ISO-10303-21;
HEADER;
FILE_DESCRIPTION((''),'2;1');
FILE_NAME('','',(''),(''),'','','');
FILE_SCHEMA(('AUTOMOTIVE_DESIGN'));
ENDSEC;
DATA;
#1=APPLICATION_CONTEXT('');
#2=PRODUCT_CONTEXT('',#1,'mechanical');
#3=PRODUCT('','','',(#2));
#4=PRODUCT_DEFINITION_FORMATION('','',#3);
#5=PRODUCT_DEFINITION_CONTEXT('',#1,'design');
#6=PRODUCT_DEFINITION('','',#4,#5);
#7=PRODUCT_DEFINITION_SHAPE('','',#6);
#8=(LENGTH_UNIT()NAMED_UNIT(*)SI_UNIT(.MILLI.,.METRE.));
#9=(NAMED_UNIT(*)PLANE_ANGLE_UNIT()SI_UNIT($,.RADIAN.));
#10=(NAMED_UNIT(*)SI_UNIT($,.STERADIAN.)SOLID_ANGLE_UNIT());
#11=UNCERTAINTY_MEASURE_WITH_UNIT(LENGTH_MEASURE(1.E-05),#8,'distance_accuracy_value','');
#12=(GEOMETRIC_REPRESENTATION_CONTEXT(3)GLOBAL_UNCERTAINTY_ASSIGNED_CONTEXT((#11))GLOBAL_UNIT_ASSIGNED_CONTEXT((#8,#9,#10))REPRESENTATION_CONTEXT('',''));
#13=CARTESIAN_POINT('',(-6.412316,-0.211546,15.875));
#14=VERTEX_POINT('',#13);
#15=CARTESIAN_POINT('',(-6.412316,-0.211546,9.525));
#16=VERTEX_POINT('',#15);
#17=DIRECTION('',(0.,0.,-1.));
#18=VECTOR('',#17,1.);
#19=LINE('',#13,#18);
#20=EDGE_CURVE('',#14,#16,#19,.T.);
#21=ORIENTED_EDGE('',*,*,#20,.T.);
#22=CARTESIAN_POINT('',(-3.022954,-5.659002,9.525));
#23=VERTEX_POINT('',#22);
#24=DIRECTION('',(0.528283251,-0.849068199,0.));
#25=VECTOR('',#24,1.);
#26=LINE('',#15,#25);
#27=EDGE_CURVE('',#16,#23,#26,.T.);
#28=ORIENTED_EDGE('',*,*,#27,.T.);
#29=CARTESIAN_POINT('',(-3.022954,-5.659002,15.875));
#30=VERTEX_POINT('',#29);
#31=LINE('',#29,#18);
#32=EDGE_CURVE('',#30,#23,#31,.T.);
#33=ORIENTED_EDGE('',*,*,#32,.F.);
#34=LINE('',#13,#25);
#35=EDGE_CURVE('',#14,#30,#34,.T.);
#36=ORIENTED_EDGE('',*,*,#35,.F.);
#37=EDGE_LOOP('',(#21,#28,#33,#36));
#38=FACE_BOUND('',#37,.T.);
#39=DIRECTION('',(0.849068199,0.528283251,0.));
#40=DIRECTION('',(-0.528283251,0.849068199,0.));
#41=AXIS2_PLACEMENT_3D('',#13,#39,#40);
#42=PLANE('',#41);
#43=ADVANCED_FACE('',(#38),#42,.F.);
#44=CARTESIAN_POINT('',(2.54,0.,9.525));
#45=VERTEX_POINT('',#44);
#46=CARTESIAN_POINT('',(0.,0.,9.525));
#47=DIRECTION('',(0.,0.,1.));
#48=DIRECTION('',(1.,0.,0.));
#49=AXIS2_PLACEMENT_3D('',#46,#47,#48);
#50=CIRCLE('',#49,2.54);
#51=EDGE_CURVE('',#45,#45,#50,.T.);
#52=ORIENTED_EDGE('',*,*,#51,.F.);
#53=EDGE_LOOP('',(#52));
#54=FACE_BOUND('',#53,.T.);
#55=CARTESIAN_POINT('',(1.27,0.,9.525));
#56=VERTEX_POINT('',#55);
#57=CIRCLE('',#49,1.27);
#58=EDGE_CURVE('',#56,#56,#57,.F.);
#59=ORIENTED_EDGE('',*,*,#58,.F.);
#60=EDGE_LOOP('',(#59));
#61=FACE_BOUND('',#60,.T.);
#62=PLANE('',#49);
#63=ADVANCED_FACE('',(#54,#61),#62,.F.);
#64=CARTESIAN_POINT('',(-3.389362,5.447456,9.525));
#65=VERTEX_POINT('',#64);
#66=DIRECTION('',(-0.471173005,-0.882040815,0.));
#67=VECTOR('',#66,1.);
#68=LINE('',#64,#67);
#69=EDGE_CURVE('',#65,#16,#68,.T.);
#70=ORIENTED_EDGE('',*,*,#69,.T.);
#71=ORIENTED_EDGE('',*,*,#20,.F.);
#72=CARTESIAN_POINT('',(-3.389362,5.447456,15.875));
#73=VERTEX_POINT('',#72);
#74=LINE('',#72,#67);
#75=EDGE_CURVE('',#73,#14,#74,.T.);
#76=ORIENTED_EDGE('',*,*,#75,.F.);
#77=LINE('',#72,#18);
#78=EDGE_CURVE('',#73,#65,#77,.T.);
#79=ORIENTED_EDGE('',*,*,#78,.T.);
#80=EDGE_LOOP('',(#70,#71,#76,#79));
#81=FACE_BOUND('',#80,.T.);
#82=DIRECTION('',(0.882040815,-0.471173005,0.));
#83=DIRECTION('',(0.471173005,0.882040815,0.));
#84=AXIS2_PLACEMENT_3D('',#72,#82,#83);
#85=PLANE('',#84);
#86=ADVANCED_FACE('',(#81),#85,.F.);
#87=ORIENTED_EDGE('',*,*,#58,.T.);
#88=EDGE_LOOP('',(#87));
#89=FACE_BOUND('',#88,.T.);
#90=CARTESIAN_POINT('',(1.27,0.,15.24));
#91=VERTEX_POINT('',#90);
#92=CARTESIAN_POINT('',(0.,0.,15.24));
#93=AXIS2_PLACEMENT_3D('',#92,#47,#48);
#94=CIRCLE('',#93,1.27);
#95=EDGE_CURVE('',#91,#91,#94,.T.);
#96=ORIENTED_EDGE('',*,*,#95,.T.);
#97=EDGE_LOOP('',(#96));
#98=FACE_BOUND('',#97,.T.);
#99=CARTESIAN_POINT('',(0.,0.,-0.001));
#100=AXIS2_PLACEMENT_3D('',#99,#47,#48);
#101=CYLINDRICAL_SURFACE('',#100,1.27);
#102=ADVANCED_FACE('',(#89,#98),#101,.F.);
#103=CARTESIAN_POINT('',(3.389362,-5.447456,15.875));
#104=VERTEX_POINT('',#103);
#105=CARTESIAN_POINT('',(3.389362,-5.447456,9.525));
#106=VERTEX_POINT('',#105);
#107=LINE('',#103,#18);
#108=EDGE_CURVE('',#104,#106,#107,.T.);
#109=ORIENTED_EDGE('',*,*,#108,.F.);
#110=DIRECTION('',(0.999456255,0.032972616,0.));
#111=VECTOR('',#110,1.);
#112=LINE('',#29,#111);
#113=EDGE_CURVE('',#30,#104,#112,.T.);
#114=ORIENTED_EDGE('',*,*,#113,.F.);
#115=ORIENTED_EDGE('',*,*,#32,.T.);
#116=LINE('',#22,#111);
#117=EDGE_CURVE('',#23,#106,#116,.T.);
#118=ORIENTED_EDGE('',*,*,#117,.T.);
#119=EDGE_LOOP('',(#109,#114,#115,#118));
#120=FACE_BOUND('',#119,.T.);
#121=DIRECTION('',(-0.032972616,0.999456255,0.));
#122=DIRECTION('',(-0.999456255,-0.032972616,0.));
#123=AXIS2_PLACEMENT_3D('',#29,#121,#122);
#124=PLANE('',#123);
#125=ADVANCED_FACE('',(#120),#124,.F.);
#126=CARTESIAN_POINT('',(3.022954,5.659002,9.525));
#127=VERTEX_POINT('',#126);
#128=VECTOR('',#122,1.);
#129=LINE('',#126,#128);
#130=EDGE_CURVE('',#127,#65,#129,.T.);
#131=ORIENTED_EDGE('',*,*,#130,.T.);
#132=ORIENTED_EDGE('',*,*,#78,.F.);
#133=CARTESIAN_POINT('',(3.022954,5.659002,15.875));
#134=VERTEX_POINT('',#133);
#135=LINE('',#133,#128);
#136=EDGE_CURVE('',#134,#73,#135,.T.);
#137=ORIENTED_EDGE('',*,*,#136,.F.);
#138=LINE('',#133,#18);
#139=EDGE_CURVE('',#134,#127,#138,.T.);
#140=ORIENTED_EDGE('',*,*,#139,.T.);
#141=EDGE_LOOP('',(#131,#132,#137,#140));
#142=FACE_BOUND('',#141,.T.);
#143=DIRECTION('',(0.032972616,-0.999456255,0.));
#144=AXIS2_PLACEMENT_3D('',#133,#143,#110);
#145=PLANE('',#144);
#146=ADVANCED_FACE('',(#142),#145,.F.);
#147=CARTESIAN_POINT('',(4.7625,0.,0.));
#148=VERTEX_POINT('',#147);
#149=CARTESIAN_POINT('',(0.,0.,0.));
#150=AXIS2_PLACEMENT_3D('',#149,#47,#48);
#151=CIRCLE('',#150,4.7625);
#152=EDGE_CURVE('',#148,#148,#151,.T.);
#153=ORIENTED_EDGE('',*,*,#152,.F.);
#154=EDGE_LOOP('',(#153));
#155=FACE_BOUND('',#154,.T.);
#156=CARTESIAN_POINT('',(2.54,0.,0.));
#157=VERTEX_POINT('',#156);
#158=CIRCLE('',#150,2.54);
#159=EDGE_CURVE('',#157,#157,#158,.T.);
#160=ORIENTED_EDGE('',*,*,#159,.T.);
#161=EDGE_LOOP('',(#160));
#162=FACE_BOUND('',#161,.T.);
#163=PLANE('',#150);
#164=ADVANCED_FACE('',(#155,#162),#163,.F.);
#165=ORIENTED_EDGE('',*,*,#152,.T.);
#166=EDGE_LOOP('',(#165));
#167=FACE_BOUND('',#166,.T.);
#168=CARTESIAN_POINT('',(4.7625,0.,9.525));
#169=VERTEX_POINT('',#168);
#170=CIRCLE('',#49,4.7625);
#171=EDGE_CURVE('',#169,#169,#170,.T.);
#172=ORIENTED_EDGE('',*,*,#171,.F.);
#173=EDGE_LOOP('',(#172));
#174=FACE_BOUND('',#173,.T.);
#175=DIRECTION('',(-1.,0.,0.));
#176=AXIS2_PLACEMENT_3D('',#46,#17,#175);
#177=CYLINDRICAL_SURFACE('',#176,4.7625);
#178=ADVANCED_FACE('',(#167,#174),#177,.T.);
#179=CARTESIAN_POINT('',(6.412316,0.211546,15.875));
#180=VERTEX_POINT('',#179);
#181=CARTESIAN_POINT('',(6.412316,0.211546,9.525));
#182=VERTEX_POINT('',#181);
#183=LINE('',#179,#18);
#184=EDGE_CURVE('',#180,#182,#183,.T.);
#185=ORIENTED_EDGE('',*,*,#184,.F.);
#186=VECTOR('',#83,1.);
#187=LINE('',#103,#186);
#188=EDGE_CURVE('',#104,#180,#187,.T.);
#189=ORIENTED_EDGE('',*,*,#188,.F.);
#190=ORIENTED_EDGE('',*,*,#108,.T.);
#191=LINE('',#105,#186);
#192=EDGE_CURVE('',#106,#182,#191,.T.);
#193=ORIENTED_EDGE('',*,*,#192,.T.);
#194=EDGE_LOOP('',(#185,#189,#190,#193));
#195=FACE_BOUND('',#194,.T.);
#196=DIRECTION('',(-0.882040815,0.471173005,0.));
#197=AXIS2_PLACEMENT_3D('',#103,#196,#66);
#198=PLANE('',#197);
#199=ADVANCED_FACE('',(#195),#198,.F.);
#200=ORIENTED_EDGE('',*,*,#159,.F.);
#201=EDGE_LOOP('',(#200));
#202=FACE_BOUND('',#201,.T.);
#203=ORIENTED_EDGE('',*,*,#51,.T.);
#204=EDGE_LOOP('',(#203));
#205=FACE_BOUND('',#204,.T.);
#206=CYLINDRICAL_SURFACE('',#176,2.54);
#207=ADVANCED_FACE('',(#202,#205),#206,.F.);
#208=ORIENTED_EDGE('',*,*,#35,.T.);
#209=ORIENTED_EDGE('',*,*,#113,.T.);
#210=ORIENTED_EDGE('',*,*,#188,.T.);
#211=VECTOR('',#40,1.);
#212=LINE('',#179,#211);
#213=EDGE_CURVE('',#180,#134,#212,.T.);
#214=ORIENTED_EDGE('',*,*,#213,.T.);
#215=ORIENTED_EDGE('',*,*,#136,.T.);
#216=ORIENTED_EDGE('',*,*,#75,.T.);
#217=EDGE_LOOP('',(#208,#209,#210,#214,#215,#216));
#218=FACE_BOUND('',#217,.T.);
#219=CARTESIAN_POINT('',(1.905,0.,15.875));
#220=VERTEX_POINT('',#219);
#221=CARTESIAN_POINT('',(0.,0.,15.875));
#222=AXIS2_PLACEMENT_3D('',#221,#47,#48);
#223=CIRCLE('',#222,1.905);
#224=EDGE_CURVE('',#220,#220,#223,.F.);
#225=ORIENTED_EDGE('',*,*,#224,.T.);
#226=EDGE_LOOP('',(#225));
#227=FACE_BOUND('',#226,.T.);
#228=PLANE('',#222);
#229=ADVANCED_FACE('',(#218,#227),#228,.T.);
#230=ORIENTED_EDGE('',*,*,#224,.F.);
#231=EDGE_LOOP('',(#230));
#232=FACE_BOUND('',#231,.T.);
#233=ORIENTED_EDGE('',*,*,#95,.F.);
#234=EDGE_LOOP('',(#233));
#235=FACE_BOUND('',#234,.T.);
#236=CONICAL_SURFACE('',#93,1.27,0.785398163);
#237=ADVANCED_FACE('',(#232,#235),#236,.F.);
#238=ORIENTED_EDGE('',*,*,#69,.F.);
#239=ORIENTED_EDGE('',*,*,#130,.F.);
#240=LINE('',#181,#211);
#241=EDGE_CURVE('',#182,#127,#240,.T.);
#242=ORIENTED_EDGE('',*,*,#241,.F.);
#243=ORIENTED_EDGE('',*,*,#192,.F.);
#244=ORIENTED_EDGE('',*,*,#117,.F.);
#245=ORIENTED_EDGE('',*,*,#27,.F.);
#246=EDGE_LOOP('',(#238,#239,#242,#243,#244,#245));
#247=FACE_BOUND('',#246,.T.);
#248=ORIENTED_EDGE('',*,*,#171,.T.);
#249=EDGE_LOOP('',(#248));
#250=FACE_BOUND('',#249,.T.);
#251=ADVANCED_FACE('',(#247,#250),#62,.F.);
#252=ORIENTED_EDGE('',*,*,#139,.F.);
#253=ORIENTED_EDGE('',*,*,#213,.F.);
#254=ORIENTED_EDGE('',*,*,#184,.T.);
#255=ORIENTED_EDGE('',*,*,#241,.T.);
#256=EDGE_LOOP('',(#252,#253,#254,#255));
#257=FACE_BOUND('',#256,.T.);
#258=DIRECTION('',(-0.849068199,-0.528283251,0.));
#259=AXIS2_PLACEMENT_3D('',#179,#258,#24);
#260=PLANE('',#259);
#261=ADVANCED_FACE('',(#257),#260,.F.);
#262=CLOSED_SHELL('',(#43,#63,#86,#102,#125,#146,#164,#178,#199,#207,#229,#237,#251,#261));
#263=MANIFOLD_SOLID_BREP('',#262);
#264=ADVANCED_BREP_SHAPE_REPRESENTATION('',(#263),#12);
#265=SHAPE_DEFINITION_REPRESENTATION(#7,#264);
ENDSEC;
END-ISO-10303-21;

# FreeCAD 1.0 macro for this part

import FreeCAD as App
import Part
import Sketcher
Q = App.Units.Quantity


def edges_at(feature, points):
    """Names of the edges that pass closest to the given points."""
    edges = feature.Shape.Edges
    near = lambda p: min(range(len(edges)), key=lambda i: edges[i].distToShape(Part.Vertex(*p))[0])
    return sorted({f"Edge{near(p) + 1}" for p in points})

doc = App.newDocument("Part")
body = doc.addObject("PartDesign::Body", "Body")

sketch1 = body.newObject("Sketcher::SketchObject", "Sketch")
sketch1.AttachmentSupport = (doc.getObject("XY_Plane"), [""])
sketch1.MapMode = "FlatFace"
sketch1.addGeometry(Part.Circle(App.Vector(0, 0, 0), App.Vector(0, 0, 1), 4.8), False)
sketch1.addGeometry(Part.Circle(App.Vector(0, 0, 0), App.Vector(0, 0, 1), 2.5), False)
sketch1.addConstraint(Sketcher.Constraint("Coincident", 0, 3, -1, 1))
sketch1.addConstraint(Sketcher.Constraint("Coincident", 1, 3, -1, 1))
sketch1.addConstraint(Sketcher.Constraint("Diameter", 1, Q("0.2 in")))
sketch1.addConstraint(Sketcher.Constraint("Diameter", 0, Q("0.375 in")))
pad1 = body.newObject("PartDesign::Pad", "Pad")
pad1.Profile = sketch1
pad1.Length = Q("0.375 in")

sketch2 = body.newObject("Sketcher::SketchObject", "Sketch001")
sketch2.AttachmentSupport = (doc.getObject("XY_Plane"), [""])
sketch2.MapMode = "FlatFace"
sketch2.AttachmentOffset = App.Placement(App.Vector(0, 0, 0.375 * 25.4), App.Rotation())
sketch2.addGeometry(Part.LineSegment(App.Vector(3, 6, 0), App.Vector(-3, 5, 0)), False)
sketch2.addGeometry(Part.LineSegment(App.Vector(-3, 5, 0), App.Vector(-6, 0, 0)), False)
sketch2.addGeometry(Part.LineSegment(App.Vector(-6, 0, 0), App.Vector(-3, -6, 0)), False)
sketch2.addGeometry(Part.LineSegment(App.Vector(-3, -6, 0), App.Vector(3, -5, 0)), False)
sketch2.addGeometry(Part.LineSegment(App.Vector(3, -5, 0), App.Vector(6, 0, 0)), False)
sketch2.addGeometry(Part.LineSegment(App.Vector(6, 0, 0), App.Vector(3, 6, 0)), False)
sketch2.addConstraint(Sketcher.Constraint("Coincident", 0, 2, 1, 1))
sketch2.addConstraint(Sketcher.Constraint("Coincident", 1, 2, 2, 1))
sketch2.addConstraint(Sketcher.Constraint("Coincident", 2, 2, 3, 1))
sketch2.addConstraint(Sketcher.Constraint("Coincident", 3, 2, 4, 1))
sketch2.addConstraint(Sketcher.Constraint("Coincident", 4, 2, 5, 1))
sketch2.addConstraint(Sketcher.Constraint("Coincident", 5, 2, 0, 1))
sketch2.addConstraint(Sketcher.Constraint("Symmetric", 0, 2, 3, 2, -1, 1))
sketch2.addConstraint(Sketcher.Constraint("Symmetric", 1, 2, 4, 2, -1, 1))
sketch2.addConstraint(Sketcher.Constraint("Symmetric", 2, 2, 5, 2, -1, 1))
sketch2.addConstraint(Sketcher.Constraint("Equal", 0, 1))
sketch2.addConstraint(Sketcher.Constraint("Equal", 1, 2))
sketch2.addConstraint(Sketcher.Constraint("DistanceY", 2, 2, -1, 1, Q("5.659002 mm")))
sketch2.addConstraint(Sketcher.Constraint("DistanceY", 1, 2, 0, 2, Q("5.659002 mm")))
sketch2.addConstraint(Sketcher.Constraint("DistanceX", 0, 2, 2, 2, Q("0.366408 mm")))
sketch2.addConstraint(Sketcher.Constraint("DistanceX", 1, 2, 3, 2, Q("9.801679 mm")))
pad2 = body.newObject("PartDesign::Pad", "Pad001")
pad2.Profile = sketch2
pad2.Length = Q("0.25 in")

sketch3 = body.newObject("Sketcher::SketchObject", "Sketch002")
sketch3.AttachmentSupport = (doc.getObject("XY_Plane"), [""])
sketch3.MapMode = "FlatFace"
sketch3.AttachmentOffset = App.Placement(App.Vector(0, 0, 0.625 * 25.4), App.Rotation())
sketch3.addGeometry(Part.Circle(App.Vector(0, 0, 0), App.Vector(0, 0, 1), 1.3), False)
sketch3.addConstraint(Sketcher.Constraint("Coincident", 0, 3, -1, 1))
sketch3.addConstraint(Sketcher.Constraint("Diameter", 0, Q("0.1 in")))
pocket1 = body.newObject("PartDesign::Pocket", "Pocket")
pocket1.Profile = sketch3
pocket1.Type = "UpToFirst"
doc.recompute()

chamfer = body.newObject("PartDesign::Chamfer", "Chamfer")
chamfer.Base = (pocket1, edges_at(pocket1, [(-1.27, 0, 15.875)]))
chamfer.Size = Q("0.025 in")

doc.recompute()
